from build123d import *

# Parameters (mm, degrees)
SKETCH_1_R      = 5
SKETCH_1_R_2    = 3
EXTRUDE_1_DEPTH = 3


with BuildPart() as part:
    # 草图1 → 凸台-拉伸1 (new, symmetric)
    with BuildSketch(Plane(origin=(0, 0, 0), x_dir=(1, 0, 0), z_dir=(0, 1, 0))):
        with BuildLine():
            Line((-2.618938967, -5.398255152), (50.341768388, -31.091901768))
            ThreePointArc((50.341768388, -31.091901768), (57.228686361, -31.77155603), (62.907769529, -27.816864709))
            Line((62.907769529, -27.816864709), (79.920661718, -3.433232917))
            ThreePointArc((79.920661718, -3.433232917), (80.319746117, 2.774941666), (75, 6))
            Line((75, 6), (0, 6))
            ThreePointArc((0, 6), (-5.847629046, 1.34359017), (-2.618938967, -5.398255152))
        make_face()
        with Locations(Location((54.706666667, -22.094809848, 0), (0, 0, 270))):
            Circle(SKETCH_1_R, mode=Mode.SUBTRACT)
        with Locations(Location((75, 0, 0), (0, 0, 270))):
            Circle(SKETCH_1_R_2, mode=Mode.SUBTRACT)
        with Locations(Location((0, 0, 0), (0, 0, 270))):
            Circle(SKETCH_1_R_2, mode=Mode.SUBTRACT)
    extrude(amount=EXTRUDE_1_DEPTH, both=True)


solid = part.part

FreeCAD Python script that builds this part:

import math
import FreeCAD as App
import Part
import Sketcher
from FreeCAD import Vector

doc = App.newDocument("Part")
body = doc.addObject("PartDesign::Body", "Body")

# Sketch on XZ plane
sketch1 = body.newObject("Sketcher::SketchObject", "Sketch")
sketch1.AttachmentSupport = (doc.getObject("XZ_Plane"), [""])
sketch1.MapMode = "FlatFace"
sketch1.addGeometry(Part.LineSegment(Vector(-2.6, 5.4, 0), Vector(50.3, 31.1, 0)), False)
sketch1.addGeometry(Part.ArcOfCircle(Part.Circle(Vector(54.7, 22.1, 0), Vector(0, 0, 1), 10), math.radians(35), math.radians(116)), False)
sketch1.addGeometry(Part.LineSegment(Vector(62.9, 27.8, 0), Vector(79.9, 3.4, 0)), False)
sketch1.addGeometry(Part.ArcOfCircle(Part.Circle(Vector(75, 0, 0), Vector(0, 0, 1), 6), math.radians(-90), math.radians(35)), False)
sketch1.addGeometry(Part.LineSegment(Vector(75, -6, 0), Vector(0, -6, 0)), False)
sketch1.addGeometry(Part.ArcOfCircle(Part.Circle(Vector(0, 0, 0), Vector(0, 0, 1), 6), math.radians(116), math.radians(270)), False)
sketch1.addGeometry(Part.Circle(Vector(54.7, 22.1, 0), Vector(0, 0, 1), 5), False)
sketch1.addGeometry(Part.Circle(Vector(0, 0, 0), Vector(0, 0, 1), 3), False)
sketch1.addGeometry(Part.Circle(Vector(75, 0, 0), Vector(0, 0, 1), 3), False)
sketch1.addConstraint(Sketcher.Constraint("Tangent", 0, 2, 1, 2))
sketch1.addConstraint(Sketcher.Constraint("Tangent", 1, 1, 2, 1))
sketch1.addConstraint(Sketcher.Constraint("Tangent", 2, 2, 3, 2))
sketch1.addConstraint(Sketcher.Constraint("Tangent", 3, 1, 4, 1))
sketch1.addConstraint(Sketcher.Constraint("Tangent", 4, 2, 5, 2))
sketch1.addConstraint(Sketcher.Constraint("Tangent", 5, 1, 0, 1))
sketch1.addConstraint(Sketcher.Constraint("Horizontal", 4))
sketch1.addConstraint(Sketcher.Constraint("Coincident", 5, 3, -1, 1))
sketch1.addConstraint(Sketcher.Constraint("Coincident", 7, 3, -1, 1))
sketch1.addConstraint(Sketcher.Constraint("Coincident", 6, 3, 1, 3))
sketch1.addConstraint(Sketcher.Constraint("Coincident", 8, 3, 3, 3))
sketch1.addConstraint(Sketcher.Constraint("Equal", 3, 5))
sketch1.addConstraint(Sketcher.Constraint("Equal", 7, 8))
sketch1.addConstraint(Sketcher.Constraint("Diameter", 6, 10.0))
sketch1.addConstraint(Sketcher.Constraint("Diameter", 7, 6.0))
sketch1.addConstraint(Sketcher.Constraint("Radius", 1, 10.0))
sketch1.addConstraint(Sketcher.Constraint("Radius", 3, 6.0))
sketch1.addConstraint(Sketcher.Constraint("DistanceX", 4, 2, 4, 1, 75.0))
sketch1.addConstraint(Sketcher.Constraint("DistanceX", 0, 2, 1, 1, 12.566001))
sketch1.addConstraint(Sketcher.Constraint("DistanceY", -1, 1, 0, 2, 31.091902))
pad1 = body.newObject("PartDesign::Pad", "Pad")
pad1.Profile = sketch1
pad1.Length = 6
pad1.Midplane = True

doc.recompute()
